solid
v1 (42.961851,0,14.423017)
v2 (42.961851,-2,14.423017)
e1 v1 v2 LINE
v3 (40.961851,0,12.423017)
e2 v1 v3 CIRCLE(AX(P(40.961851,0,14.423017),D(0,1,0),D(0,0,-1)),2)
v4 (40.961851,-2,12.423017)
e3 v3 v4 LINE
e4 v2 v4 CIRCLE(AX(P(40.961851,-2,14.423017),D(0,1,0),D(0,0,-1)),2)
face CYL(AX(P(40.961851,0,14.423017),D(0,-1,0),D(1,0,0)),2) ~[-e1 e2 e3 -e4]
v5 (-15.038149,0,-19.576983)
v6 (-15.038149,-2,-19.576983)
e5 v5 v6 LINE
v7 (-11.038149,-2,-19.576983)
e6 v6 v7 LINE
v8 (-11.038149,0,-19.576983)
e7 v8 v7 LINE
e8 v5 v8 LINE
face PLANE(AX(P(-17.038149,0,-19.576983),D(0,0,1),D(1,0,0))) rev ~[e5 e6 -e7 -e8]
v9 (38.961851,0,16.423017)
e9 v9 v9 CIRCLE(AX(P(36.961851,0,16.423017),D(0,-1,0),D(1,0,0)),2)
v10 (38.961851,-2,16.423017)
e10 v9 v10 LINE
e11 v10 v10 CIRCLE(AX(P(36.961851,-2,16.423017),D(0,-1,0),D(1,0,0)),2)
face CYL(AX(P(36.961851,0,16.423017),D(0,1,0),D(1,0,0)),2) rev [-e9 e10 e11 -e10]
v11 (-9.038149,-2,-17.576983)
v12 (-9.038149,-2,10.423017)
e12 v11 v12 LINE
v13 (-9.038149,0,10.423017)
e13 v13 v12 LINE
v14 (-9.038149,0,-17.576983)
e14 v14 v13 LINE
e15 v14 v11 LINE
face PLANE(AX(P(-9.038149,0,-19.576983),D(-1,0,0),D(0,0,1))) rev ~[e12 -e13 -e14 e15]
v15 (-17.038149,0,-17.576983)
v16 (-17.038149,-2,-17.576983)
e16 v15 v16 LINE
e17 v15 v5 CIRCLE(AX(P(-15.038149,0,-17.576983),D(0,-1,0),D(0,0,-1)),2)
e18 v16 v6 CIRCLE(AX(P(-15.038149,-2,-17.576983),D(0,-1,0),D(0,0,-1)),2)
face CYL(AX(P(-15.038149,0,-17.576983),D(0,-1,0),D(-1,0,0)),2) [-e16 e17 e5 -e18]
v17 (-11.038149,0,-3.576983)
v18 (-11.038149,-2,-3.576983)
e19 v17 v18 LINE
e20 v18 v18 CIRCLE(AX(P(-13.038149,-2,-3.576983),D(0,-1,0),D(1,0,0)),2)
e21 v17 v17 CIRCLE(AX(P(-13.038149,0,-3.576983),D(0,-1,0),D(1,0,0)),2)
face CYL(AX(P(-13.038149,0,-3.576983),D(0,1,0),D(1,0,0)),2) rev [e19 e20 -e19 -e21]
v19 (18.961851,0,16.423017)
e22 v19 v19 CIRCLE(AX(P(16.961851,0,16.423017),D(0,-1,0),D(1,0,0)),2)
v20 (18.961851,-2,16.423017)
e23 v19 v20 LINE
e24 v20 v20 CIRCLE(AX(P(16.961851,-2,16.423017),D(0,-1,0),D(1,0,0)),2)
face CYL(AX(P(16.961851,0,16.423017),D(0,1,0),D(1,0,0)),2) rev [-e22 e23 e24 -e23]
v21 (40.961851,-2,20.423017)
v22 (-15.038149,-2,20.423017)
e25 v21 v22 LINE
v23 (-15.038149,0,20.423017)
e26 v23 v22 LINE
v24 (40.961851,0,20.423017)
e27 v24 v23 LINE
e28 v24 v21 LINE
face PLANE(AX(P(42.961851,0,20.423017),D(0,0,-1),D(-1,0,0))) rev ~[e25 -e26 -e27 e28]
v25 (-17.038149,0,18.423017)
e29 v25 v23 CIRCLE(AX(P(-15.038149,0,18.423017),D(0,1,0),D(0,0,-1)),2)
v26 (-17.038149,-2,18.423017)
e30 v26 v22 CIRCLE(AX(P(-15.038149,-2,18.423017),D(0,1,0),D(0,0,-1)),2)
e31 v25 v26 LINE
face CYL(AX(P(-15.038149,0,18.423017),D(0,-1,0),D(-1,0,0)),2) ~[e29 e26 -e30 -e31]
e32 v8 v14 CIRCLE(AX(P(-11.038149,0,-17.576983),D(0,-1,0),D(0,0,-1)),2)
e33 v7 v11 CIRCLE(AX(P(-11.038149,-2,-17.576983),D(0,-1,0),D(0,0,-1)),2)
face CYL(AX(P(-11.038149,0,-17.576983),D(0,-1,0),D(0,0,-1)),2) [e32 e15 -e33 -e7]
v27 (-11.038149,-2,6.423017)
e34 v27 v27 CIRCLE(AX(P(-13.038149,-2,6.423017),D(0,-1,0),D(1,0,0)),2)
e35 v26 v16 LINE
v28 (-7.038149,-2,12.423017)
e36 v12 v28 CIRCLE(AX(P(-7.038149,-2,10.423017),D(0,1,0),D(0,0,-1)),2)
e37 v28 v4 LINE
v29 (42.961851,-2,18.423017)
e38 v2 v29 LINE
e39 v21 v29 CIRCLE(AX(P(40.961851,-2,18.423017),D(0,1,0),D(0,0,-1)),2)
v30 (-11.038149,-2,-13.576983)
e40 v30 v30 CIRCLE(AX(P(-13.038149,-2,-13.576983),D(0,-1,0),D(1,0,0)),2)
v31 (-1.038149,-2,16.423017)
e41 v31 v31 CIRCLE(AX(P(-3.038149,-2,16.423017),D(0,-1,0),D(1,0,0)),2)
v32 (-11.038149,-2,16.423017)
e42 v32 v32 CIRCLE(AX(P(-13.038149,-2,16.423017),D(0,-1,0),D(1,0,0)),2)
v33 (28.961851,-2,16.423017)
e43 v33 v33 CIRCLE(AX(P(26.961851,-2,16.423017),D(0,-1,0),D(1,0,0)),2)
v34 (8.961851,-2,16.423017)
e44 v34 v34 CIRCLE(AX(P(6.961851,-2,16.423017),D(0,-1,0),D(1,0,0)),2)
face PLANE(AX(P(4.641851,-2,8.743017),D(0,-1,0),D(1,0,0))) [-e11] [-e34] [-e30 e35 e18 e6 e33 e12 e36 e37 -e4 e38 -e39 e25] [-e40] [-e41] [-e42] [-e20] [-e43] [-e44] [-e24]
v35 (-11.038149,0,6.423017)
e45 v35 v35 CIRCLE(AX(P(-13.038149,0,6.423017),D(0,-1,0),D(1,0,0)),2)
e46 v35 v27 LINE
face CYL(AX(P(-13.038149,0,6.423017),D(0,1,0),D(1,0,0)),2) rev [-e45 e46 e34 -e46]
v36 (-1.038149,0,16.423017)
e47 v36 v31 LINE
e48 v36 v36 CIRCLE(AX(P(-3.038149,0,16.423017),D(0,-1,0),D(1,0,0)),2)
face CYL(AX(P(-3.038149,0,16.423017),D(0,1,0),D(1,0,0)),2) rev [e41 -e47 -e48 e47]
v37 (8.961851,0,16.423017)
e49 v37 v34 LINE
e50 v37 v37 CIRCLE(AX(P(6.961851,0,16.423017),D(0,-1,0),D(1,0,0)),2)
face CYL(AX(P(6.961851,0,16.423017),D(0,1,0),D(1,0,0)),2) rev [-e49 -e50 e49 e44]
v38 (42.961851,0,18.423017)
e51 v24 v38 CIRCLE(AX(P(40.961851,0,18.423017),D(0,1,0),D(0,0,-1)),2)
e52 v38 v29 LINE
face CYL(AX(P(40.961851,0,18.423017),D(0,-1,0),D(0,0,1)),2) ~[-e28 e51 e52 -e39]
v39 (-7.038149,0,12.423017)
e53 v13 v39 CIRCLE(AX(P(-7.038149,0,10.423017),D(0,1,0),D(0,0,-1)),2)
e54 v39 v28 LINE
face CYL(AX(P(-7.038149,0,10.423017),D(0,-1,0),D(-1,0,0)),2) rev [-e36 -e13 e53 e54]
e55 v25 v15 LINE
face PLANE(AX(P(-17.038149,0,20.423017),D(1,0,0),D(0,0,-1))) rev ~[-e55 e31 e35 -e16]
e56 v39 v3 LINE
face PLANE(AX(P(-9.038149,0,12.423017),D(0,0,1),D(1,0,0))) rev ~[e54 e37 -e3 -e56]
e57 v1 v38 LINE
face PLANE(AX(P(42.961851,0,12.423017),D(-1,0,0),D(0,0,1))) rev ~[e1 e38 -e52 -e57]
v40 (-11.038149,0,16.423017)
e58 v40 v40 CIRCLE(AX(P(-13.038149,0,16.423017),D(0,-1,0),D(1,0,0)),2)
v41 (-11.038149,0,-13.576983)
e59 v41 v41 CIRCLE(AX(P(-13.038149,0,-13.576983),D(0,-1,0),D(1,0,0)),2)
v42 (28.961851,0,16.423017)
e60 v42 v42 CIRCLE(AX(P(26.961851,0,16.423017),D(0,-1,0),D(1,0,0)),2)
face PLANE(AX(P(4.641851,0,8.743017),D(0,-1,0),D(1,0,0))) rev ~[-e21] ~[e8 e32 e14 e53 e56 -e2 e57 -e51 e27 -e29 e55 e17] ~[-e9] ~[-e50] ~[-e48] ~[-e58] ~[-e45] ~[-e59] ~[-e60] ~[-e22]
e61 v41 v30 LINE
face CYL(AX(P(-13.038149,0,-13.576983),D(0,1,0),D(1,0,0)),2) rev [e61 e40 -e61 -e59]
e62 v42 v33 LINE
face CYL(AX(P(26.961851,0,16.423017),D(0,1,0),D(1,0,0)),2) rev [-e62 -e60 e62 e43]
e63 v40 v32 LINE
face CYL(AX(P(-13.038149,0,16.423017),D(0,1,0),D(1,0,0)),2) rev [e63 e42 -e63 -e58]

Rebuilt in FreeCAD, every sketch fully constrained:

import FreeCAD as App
import Part
import Sketcher
from FreeCAD import Vector


def edges_at(feature, points):
    """Names of the edges that pass closest to the given points."""
    edges = feature.Shape.Edges
    near = lambda p: min(range(len(edges)), key=lambda i: edges[i].distToShape(Part.Vertex(*p))[0])
    return sorted({f"Edge{near(p) + 1}" for p in points})

doc = App.newDocument("Part")
body = doc.addObject("PartDesign::Body", "Body")

# Sketch on XZ plane
sketch1 = body.newObject("Sketcher::SketchObject", "Sketch")
sketch1.AttachmentSupport = (doc.getObject("XZ_Plane"), [""])
sketch1.MapMode = "FlatFace"
sketch1.addGeometry([
    Part.LineSegment(Vector(-17, 20.4, 0), Vector(-17, -19.6, 0)),  # 0
    Part.LineSegment(Vector(-17, -19.6, 0), Vector(-9, -19.6, 0)),  # 1
    Part.LineSegment(Vector(-9, -19.6, 0), Vector(-9, 12.4, 0)),  # 2
    Part.LineSegment(Vector(-9, 12.4, 0), Vector(43, 12.4, 0)),  # 3
    Part.LineSegment(Vector(43, 12.4, 0), Vector(43, 20.4, 0)),  # 4
    Part.LineSegment(Vector(43, 20.4, 0), Vector(-17, 20.4, 0)),  # 5
    Part.Circle(Vector(-13, -13.6, 0), Vector(0, 0, 1), 2),  # 6
    Part.Circle(Vector(-13, -3.6, 0), Vector(0, 0, 1), 2),  # 7
    Part.Circle(Vector(-13, 6.4, 0), Vector(0, 0, 1), 2),  # 8
    Part.Circle(Vector(-13, 16.4, 0), Vector(0, 0, 1), 2),  # 9
    Part.Circle(Vector(-3, 16.4, 0), Vector(0, 0, 1), 2),  # 10
    Part.Circle(Vector(7, 16.4, 0), Vector(0, 0, 1), 2),  # 11
    Part.Circle(Vector(17, 16.4, 0), Vector(0, 0, 1), 2),  # 12
    Part.Circle(Vector(27, 16.4, 0), Vector(0, 0, 1), 2),  # 13
    Part.Circle(Vector(37, 16.4, 0), Vector(0, 0, 1), 2),  # 14
], False)
sketch1.addConstraint([
    Sketcher.Constraint("Coincident", 0, 2, 1, 1),
    Sketcher.Constraint("Coincident", 1, 2, 2, 1),
    Sketcher.Constraint("Coincident", 2, 2, 3, 1),
    Sketcher.Constraint("Coincident", 3, 2, 4, 1),
    Sketcher.Constraint("Coincident", 4, 2, 5, 1),
    Sketcher.Constraint("Coincident", 5, 2, 0, 1),
    Sketcher.Constraint("Vertical", 0),
    Sketcher.Constraint("Horizontal", 1),
    Sketcher.Constraint("Vertical", 2),
    Sketcher.Constraint("Horizontal", 3),
    Sketcher.Constraint("Vertical", 4),
    Sketcher.Constraint("Horizontal", 5),
    Sketcher.Constraint("Equal", 6, 7),
    Sketcher.Constraint("Equal", 7, 8),
    Sketcher.Constraint("Equal", 8, 9),
    Sketcher.Constraint("Equal", 9, 10),
    Sketcher.Constraint("Equal", 10, 11),
    Sketcher.Constraint("Equal", 11, 12),
    Sketcher.Constraint("Equal", 12, 13),
    Sketcher.Constraint("Equal", 13, 14),
    Sketcher.Constraint("Horizontal", 9, 3, 10, 3),
    Sketcher.Constraint("Horizontal", 10, 3, 11, 3),
    Sketcher.Constraint("Horizontal", 11, 3, 12, 3),
    Sketcher.Constraint("Horizontal", 12, 3, 13, 3),
    Sketcher.Constraint("Horizontal", 13, 3, 14, 3),
    Sketcher.Constraint("Vertical", 6, 3, 7, 3),
    Sketcher.Constraint("Vertical", 7, 3, 8, 3),
    Sketcher.Constraint("Vertical", 8, 3, 9, 3),
    Sketcher.Constraint("Equal", 1, 4),
    Sketcher.Constraint("Diameter", 6, 4.0),
    Sketcher.Constraint("DistanceX", 1, 1, 1, 2, 8.0),
    Sketcher.Constraint("DistanceX", 3, 1, 3, 2, 52.0),
    Sketcher.Constraint("DistanceY", 0, 2, 0, 1, 40.0),
    Sketcher.Constraint("DistanceY", 6, 3, 7, 3, 10.0),
    Sketcher.Constraint("DistanceY", 7, 3, 8, 3, 10.0),
    Sketcher.Constraint("DistanceY", 8, 3, 9, 3, 10.0),
    Sketcher.Constraint("DistanceX", 9, 3, 10, 3, 10.0),
    Sketcher.Constraint("DistanceX", 10, 3, 11, 3, 10.0),
    Sketcher.Constraint("DistanceX", 11, 3, 12, 3, 10.0),
    Sketcher.Constraint("DistanceX", 12, 3, 13, 3, 10.0),
    Sketcher.Constraint("DistanceX", 13, 3, 14, 3, 10.0),
    Sketcher.Constraint("DistanceX", 0, 2, 6, 3, 4.0),
    Sketcher.Constraint("DistanceY", 0, 2, 6, 3, 6.0),
    Sketcher.Constraint("DistanceX", 6, 3, -1, 1, 13.038149),
    Sketcher.Constraint("DistanceY", 6, 3, -1, 1, 13.576983),
])
pad1 = body.newObject("PartDesign::Pad", "Pad")
pad1.Profile = sketch1
pad1.Length = 2
doc.recompute()

fillet = body.newObject("PartDesign::Fillet", "Fillet")
fillet.Base = (pad1, edges_at(pad1, [
    (-17.038, -1, 20.423),
    (42.962, -1, 20.423),
    (42.962, -1, 12.423),
    (-9.038, -1, 12.423),
    (-9.038, -1, -19.577),
    (-17.038, -1, -19.577),
]))
fillet.Radius = 2

doc.recompute()
